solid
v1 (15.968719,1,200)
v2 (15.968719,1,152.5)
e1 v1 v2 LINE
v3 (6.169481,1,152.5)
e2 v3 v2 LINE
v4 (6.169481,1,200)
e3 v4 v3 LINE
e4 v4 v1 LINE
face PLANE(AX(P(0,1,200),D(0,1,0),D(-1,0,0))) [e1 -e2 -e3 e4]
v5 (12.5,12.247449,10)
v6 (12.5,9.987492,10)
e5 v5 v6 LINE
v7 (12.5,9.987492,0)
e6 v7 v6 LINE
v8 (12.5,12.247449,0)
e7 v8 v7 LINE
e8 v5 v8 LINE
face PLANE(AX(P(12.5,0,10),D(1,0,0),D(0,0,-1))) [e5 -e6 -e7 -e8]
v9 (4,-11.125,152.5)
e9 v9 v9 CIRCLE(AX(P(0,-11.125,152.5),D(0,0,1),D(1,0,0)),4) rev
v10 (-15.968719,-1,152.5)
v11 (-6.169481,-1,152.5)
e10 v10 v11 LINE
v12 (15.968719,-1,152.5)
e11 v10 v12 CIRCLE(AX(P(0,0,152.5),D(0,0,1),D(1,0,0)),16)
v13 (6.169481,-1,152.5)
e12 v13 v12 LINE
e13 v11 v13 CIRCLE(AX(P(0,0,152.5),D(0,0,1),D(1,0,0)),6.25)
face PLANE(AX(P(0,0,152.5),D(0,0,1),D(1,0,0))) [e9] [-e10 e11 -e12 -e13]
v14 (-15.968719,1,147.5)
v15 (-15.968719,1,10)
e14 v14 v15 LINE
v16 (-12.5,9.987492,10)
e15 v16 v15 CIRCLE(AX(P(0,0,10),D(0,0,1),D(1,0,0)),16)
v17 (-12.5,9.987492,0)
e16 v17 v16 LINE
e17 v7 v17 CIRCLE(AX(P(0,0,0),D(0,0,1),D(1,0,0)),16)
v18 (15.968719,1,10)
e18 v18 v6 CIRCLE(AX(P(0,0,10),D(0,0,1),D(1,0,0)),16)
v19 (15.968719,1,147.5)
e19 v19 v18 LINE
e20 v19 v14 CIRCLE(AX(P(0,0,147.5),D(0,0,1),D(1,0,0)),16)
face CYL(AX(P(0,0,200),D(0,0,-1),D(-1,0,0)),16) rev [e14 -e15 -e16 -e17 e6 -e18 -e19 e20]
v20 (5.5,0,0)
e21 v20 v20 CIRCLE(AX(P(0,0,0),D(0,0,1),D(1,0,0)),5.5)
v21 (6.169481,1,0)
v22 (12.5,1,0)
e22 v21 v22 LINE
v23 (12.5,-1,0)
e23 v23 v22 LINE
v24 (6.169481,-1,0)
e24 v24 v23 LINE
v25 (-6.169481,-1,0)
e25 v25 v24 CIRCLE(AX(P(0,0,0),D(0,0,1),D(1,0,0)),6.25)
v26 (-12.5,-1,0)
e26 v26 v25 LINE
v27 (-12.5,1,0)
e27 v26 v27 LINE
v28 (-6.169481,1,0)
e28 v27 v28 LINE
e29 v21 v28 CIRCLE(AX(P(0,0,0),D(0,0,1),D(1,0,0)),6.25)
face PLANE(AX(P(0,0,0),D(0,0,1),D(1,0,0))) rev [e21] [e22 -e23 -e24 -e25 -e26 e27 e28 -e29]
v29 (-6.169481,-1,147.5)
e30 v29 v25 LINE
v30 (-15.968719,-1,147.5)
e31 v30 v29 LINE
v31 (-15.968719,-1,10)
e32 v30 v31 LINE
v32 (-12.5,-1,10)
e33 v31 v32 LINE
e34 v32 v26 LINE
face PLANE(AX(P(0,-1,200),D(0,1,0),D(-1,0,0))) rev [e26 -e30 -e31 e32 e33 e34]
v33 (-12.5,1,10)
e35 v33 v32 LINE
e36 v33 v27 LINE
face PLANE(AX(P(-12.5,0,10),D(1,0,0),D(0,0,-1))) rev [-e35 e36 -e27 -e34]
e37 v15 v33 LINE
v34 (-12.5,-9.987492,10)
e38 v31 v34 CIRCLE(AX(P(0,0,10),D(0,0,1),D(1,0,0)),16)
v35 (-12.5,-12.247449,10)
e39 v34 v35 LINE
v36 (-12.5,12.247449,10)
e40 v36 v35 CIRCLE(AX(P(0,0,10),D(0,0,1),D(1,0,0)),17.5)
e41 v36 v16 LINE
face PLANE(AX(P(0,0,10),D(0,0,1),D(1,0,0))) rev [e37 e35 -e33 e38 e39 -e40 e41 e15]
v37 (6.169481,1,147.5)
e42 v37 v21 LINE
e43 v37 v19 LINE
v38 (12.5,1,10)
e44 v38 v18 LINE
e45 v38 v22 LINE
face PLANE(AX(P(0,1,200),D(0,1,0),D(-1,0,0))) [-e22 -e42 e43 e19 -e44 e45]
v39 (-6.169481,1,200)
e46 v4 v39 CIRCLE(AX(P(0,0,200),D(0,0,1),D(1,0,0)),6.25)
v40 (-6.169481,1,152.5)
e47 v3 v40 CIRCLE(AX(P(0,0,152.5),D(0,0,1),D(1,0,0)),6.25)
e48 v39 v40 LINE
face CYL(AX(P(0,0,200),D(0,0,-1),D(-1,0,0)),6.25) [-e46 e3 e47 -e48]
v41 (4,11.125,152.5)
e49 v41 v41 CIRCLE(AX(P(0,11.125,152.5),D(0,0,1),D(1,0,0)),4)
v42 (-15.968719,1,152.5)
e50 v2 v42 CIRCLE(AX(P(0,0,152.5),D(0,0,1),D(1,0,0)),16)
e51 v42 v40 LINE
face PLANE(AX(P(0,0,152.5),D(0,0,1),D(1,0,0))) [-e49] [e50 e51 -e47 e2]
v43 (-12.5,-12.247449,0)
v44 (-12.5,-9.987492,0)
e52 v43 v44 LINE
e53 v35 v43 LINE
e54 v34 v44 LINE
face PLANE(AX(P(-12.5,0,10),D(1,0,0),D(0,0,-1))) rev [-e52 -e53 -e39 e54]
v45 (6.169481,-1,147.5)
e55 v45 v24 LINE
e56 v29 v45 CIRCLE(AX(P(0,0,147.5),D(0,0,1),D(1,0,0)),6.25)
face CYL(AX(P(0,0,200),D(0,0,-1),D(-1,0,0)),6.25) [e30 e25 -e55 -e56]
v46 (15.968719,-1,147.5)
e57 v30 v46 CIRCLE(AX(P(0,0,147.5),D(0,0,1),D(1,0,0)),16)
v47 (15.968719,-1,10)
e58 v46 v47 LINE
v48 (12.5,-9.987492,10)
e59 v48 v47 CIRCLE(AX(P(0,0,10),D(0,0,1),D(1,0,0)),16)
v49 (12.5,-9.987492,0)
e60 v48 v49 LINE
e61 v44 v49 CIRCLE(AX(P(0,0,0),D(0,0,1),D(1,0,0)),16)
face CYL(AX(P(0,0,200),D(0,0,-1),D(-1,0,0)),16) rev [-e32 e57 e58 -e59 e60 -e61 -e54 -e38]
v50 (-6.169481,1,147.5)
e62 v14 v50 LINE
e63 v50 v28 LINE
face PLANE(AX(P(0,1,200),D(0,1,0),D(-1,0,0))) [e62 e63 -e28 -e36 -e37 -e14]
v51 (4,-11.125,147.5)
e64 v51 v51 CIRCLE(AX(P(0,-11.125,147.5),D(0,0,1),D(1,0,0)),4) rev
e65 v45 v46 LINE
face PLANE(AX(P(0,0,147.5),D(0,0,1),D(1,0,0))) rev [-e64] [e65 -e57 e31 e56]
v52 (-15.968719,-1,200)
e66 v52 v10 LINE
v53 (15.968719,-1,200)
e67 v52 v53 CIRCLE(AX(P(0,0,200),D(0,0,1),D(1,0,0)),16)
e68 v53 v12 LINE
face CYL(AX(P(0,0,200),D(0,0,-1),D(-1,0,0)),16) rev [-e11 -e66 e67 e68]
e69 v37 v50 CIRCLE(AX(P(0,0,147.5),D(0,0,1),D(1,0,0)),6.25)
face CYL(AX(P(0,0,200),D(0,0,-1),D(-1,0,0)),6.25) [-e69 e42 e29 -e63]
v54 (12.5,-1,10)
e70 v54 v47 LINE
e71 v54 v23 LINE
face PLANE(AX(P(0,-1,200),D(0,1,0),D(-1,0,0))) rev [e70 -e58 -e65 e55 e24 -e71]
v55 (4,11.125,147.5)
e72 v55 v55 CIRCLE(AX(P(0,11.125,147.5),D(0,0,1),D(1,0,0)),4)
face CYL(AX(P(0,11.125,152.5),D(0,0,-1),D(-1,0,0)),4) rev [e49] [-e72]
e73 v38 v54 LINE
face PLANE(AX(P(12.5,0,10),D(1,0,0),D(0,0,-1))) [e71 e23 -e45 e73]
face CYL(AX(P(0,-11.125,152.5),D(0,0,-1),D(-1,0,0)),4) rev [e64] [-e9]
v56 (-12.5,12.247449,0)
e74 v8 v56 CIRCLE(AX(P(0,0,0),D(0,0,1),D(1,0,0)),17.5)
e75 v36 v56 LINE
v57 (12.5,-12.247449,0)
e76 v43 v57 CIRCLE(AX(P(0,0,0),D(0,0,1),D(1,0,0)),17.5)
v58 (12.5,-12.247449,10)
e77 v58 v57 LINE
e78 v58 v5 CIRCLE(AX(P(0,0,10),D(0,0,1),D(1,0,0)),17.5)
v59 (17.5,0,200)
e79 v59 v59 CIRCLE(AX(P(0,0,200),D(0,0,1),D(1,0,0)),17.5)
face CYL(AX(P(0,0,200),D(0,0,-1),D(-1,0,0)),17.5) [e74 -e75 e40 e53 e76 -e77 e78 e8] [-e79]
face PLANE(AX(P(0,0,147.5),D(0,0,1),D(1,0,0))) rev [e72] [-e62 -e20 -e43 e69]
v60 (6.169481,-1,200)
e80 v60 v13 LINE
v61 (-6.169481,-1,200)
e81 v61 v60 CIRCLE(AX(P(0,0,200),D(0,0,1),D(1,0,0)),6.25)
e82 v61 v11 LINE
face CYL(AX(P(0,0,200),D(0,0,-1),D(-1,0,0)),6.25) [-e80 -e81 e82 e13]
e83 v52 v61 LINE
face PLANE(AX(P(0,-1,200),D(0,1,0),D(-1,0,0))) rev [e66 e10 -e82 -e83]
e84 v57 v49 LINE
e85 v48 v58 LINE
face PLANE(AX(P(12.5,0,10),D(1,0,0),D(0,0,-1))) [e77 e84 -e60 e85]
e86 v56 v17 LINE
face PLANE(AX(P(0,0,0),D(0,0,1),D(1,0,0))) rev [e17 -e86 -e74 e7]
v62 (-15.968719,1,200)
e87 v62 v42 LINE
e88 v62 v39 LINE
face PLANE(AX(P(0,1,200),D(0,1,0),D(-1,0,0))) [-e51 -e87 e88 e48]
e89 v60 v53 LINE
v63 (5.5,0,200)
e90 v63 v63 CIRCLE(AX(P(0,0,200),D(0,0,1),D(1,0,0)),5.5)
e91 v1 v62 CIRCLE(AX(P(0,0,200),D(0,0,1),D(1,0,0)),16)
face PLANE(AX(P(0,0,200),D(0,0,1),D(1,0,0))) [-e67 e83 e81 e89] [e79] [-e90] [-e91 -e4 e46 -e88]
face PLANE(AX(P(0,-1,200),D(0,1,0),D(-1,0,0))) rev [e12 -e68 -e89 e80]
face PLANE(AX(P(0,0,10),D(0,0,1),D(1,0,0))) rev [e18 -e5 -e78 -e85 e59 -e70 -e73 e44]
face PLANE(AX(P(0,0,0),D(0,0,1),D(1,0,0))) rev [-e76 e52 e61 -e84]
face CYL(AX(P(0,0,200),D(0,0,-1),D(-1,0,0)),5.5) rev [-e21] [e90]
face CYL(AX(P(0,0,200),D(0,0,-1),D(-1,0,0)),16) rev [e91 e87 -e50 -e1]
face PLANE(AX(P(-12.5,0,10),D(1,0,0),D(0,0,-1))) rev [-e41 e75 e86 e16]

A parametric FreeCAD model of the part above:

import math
import FreeCAD as App
import Part
import Sketcher
from FreeCAD import Vector
Q = App.Units.Quantity

doc = App.newDocument("Part")
params = doc.addObject("Spreadsheet::Sheet", "Params")
for row, (alias, value) in enumerate([
    ("sketch1_diameter", "35 mm"),
    ("sketch1_diameter2", "11 mm"),
    ("sketch1_radius", "16 mm"),
    ("sketch1_radius2", "6.25 mm"),
    ("pad1_length", "200 mm"),
    ("sketch2_diameter", "32 mm"),
    ("sketch2_diameter2", "8 mm"),
    ("sketch2_diameter3", "12.5 mm"),
    ("pad2_length", "5 mm"),
    ("sketch3_radius", "17.5 mm"),
    ("pocket1_length", "10 mm"),
], start=1):
    params.set(f"A{row}", alias)
    params.set(f"B{row}", "=" + value)
    params.setAlias(f"B{row}", alias)

body = doc.addObject("PartDesign::Body", "Body")

# Sketch on XY plane
sketch1 = doc.addObject("Sketcher::SketchObject", "Sketch")
body.addObject(sketch1)
sketch1.AttachmentSupport = (doc.XY_Plane, [""])
sketch1.MapMode = "FlatFace"
sketch1.addGeometry([
    Part.Circle(Vector(0, 0, 0), Vector(0, 0, 1), 18),  # 0
    Part.LineSegment(Vector(-16, -1, 0), Vector(-6, -1, 0)),  # 1
    Part.ArcOfCircle(Part.Circle(Vector(0, 0, 0), Vector(0, 0, 1), 6), math.radians(-171), math.radians(-9)),  # 2
    Part.LineSegment(Vector(6, -1, 0), Vector(16, -1, 0)),  # 3
    Part.ArcOfCircle(Part.Circle(Vector(0, 0, 0), Vector(0, 0, 1), 16), math.radians(-176), math.radians(-4)),  # 4
    Part.Circle(Vector(0, 0, 0), Vector(0, 0, 1), 6),  # 5
    Part.ArcOfCircle(Part.Circle(Vector(0, 0, 0), Vector(0, 0, 1), 16), math.radians(4), math.radians(176)),  # 6
    Part.LineSegment(Vector(16, 1, 0), Vector(6, 1, 0)),  # 7
    Part.ArcOfCircle(Part.Circle(Vector(0, 0, 0), Vector(0, 0, 1), 6), math.radians(9), math.radians(171)),  # 8
    Part.LineSegment(Vector(-6, 1, 0), Vector(-16, 1, 0)),  # 9
], False)
sketch1.addConstraint([
    Sketcher.Constraint("Coincident", 1, 2, 2, 1),
    Sketcher.Constraint("Coincident", 2, 2, 3, 1),
    Sketcher.Constraint("Coincident", 3, 2, 4, 2),
    Sketcher.Constraint("Coincident", 4, 1, 1, 1),
    Sketcher.Constraint("Coincident", 6, 1, 7, 1),
    Sketcher.Constraint("Coincident", 7, 2, 8, 1),
    Sketcher.Constraint("Coincident", 8, 2, 9, 1),
    Sketcher.Constraint("Coincident", 9, 2, 6, 2),
    Sketcher.Constraint("Horizontal", 1),
    Sketcher.Constraint("Horizontal", 3),
    Sketcher.Constraint("Horizontal", 7),
    Sketcher.Constraint("Horizontal", 9),
    Sketcher.Constraint("Coincident", 0, 3, -1, 1),
    Sketcher.Constraint("Coincident", 2, 3, -1, 1),
    Sketcher.Constraint("Coincident", 4, 3, -1, 1),
    Sketcher.Constraint("Coincident", 5, 3, -1, 1),
    Sketcher.Constraint("Coincident", 6, 3, -1, 1),
    Sketcher.Constraint("Coincident", 8, 3, -1, 1),
    Sketcher.Constraint("Equal", 4, 6),
    Sketcher.Constraint("Equal", 2, 8),
    Sketcher.Constraint("Horizontal", 1, 2, 2, 2),
    Sketcher.Constraint("Horizontal", 7, 2, 8, 2),
    Sketcher.Constraint("Vertical", 3, 2, 6, 1),
    Sketcher.Constraint("Diameter", 0, Q("35 mm")),
    Sketcher.Constraint("Diameter", 5, Q("11 mm")),
    Sketcher.Constraint("Radius", 4, Q("16 mm")),
    Sketcher.Constraint("Radius", 2, Q("6.25 mm")),
    Sketcher.Constraint("DistanceY", 1, 2, -1, 1, Q("1 mm")),
])
sketch1.setExpression("Constraints[23]", "Params.sketch1_diameter")
sketch1.setExpression("Constraints[24]", "Params.sketch1_diameter2")
sketch1.setExpression("Constraints[25]", "Params.sketch1_radius")
sketch1.setExpression("Constraints[26]", "Params.sketch1_radius2")
pad1 = doc.addObject("PartDesign::Pad", "Pad")
body.addObject(pad1)
pad1.Profile = sketch1
pad1.setExpression("Length", "Params.pad1_length")

# Sketch on XY plane
sketch2 = doc.addObject("Sketcher::SketchObject", "Sketch001")
body.addObject(sketch2)
sketch2.AttachmentSupport = (doc.XY_Plane, [""])
sketch2.MapMode = "FlatFace"
sketch2.AttachmentOffset = App.Placement(Vector(0, 0, 150), App.Rotation())
sketch2.addGeometry([
    Part.Circle(Vector(0, 0, 0), Vector(0, 0, 1), 16),
    Part.Circle(Vector(0, -11.1, 0), Vector(0, 0, 1), 4),
    Part.Circle(Vector(0, 0, 0), Vector(0, 0, 1), 6.2),
    Part.Circle(Vector(0, 11.1, 0), Vector(0, 0, 1), 4),
], False)
sketch2.addConstraint([
    Sketcher.Constraint("Coincident", 0, 3, -1, 1),
    Sketcher.Constraint("Coincident", 2, 3, -1, 1),
    Sketcher.Constraint("Equal", 1, 3),
    Sketcher.Constraint("Symmetric", 1, 3, 3, 3, -1, 1),
    Sketcher.Constraint("PointOnObject", 1, 3, -2),
    Sketcher.Constraint("Diameter", 0, Q("32 mm")),
    Sketcher.Constraint("Diameter", 1, Q("8 mm")),
    Sketcher.Constraint("Diameter", 2, Q("12.5 mm")),
    Sketcher.Constraint("DistanceY", 1, 3, 3, 3, Q("22.25 mm")),
])
sketch2.setExpression("Constraints[5]", "Params.sketch2_diameter")
sketch2.setExpression("Constraints[6]", "Params.sketch2_diameter2")
sketch2.setExpression("Constraints[7]", "Params.sketch2_diameter3")
pad2 = doc.addObject("PartDesign::Pad", "Pad001")
body.addObject(pad2)
pad2.Profile = sketch2
pad2.setExpression("Length", "Params.pad2_length")
pad2.Midplane = True

# Sketch on XY plane
sketch3 = doc.addObject("Sketcher::SketchObject", "Sketch002")
body.addObject(sketch3)
sketch3.AttachmentSupport = (doc.XY_Plane, [""])
sketch3.MapMode = "FlatFace"
sketch3.addGeometry([
    Part.ArcOfCircle(Part.Circle(Vector(0, 0, 0), Vector(0, 0, 1), 17), math.radians(-44), math.radians(0)),  # 0
    Part.ArcOfCircle(Part.Circle(Vector(0, 0, 0), Vector(0, 0, 1), 17), math.radians(0), math.radians(44)),  # 1
    Part.LineSegment(Vector(12, 12, 0), Vector(12, -12, 0)),  # 2
    Part.ArcOfCircle(Part.Circle(Vector(0, 0, 0), Vector(0, 0, 1), 18), math.radians(136), math.radians(224)),  # 3
    Part.LineSegment(Vector(-12, -12, 0), Vector(-12, 12, 0)),  # 4
], False)
sketch3.addConstraint([
    Sketcher.Constraint("Tangent", 0, 2, 1, 1),
    Sketcher.Constraint("Coincident", 1, 2, 2, 1),
    Sketcher.Constraint("Coincident", 2, 2, 0, 1),
    Sketcher.Constraint("Coincident", 3, 1, 4, 2),
    Sketcher.Constraint("Coincident", 4, 1, 3, 2),
    Sketcher.Constraint("Vertical", 2),
    Sketcher.Constraint("Vertical", 4),
    Sketcher.Constraint("Coincident", 0, 3, -1, 1),
    Sketcher.Constraint("Coincident", 3, 3, -1, 1),
    Sketcher.Constraint("Equal", 0, 1),
    Sketcher.Constraint("Equal", 1, 3),
    Sketcher.Constraint("PointOnObject", 0, 2, -1),
    Sketcher.Constraint("Horizontal", 1, 2, 3, 1),
    Sketcher.Constraint("Radius", 0, Q("17.5 mm")),
    Sketcher.Constraint("DistanceX", 1, 2, 0, 2, Q("5 mm")),
])
sketch3.setExpression("Constraints[13]", "Params.sketch3_radius")
pocket1 = doc.addObject("PartDesign::Pocket", "Pocket")
body.addObject(pocket1)
pocket1.Profile = sketch3
pocket1.setExpression("Length", "Params.pocket1_length")
pocket1.Reversed = True

doc.recompute()
